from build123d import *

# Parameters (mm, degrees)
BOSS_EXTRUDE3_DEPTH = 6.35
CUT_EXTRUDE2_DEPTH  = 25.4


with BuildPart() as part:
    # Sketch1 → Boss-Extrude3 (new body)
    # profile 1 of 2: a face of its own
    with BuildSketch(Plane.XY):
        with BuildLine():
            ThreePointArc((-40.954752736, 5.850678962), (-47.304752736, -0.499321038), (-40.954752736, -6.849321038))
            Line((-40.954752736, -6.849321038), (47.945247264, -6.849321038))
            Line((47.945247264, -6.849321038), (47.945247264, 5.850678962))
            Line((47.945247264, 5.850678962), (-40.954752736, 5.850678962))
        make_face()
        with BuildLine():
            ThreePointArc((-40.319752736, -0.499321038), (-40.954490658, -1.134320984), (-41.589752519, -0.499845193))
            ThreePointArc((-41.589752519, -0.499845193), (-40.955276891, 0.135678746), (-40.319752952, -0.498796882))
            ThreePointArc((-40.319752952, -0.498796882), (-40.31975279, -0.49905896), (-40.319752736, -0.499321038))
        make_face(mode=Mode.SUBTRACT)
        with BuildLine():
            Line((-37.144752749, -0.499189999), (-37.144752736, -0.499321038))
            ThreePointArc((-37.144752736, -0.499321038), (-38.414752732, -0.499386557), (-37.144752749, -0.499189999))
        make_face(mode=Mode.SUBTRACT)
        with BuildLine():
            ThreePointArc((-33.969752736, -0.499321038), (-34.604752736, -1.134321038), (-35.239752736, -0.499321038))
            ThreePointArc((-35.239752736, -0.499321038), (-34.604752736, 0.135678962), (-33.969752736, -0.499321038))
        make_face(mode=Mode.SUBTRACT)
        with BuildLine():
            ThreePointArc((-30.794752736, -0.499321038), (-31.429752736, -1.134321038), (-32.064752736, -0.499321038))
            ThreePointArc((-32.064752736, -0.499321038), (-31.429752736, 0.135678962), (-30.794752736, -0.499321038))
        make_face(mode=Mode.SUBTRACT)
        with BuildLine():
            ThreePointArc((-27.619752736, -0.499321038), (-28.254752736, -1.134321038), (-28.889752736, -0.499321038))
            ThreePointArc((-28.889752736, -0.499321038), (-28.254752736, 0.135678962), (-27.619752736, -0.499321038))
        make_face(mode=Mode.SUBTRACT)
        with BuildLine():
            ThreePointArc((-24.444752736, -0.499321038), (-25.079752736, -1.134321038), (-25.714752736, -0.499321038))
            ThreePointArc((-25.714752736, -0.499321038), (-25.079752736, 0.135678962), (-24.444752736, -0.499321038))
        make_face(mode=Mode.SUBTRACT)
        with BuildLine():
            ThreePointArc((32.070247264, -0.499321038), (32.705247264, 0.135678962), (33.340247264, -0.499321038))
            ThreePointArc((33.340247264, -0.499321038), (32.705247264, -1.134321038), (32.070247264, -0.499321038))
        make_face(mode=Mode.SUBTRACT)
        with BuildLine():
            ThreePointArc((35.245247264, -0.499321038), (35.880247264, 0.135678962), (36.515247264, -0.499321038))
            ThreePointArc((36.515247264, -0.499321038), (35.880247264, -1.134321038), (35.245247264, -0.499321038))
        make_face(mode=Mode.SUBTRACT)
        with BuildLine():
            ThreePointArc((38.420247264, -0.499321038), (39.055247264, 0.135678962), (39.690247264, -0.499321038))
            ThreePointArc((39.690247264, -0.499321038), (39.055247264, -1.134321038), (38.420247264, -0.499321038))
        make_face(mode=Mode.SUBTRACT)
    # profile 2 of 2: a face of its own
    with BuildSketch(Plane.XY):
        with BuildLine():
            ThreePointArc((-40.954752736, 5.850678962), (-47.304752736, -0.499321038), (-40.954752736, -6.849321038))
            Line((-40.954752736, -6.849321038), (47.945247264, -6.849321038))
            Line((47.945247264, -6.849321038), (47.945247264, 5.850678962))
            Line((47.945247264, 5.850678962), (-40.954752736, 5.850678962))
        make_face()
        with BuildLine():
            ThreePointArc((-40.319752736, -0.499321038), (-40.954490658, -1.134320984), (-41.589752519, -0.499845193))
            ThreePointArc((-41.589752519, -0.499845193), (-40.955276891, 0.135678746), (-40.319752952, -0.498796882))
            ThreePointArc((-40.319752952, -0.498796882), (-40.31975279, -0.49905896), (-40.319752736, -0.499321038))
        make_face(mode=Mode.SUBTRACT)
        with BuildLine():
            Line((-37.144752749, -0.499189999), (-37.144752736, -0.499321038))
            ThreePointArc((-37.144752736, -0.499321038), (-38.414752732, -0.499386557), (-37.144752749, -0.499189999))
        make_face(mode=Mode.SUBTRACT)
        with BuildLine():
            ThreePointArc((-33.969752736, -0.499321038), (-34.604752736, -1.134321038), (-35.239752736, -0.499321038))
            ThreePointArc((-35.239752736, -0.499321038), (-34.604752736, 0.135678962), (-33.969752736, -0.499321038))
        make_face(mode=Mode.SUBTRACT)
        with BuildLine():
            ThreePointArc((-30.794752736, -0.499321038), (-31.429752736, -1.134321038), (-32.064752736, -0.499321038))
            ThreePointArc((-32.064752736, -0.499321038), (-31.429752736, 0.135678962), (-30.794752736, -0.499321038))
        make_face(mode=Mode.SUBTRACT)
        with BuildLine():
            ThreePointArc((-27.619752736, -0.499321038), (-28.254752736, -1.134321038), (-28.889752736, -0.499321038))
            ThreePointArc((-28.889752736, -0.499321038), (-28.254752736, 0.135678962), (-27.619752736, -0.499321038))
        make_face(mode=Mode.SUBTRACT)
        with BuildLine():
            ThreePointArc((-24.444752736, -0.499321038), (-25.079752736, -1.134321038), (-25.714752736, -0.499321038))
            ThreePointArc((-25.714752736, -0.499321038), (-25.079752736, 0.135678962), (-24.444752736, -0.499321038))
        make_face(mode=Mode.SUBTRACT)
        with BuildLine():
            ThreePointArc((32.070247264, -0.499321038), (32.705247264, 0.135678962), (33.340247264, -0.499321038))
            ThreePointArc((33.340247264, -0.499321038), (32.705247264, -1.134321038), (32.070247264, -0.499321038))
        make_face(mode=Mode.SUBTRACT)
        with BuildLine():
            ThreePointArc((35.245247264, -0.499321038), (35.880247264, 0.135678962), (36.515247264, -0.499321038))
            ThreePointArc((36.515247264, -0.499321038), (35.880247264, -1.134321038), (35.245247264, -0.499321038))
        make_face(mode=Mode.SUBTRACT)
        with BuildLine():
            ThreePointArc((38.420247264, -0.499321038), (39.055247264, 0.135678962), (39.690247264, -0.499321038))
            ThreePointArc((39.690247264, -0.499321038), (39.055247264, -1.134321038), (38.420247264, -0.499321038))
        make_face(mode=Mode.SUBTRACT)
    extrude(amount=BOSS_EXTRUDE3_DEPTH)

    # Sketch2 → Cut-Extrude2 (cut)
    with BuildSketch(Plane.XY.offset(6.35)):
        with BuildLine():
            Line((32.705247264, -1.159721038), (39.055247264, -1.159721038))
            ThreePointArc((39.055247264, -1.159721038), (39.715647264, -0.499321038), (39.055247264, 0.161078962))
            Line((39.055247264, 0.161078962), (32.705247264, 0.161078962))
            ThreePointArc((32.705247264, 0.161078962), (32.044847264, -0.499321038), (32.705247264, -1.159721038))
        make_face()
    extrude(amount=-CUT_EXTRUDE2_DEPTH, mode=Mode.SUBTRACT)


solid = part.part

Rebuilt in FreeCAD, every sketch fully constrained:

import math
import FreeCAD as App
import Part
import Sketcher
from FreeCAD import Vector
Q = App.Units.Quantity

doc = App.newDocument("Part")
body = doc.addObject("PartDesign::Body", "Body")

sketch1 = body.newObject("Sketcher::SketchObject", "Sketch")
sketch1.AttachmentSupport = (doc.getObject("XY_Plane"), [""])
sketch1.MapMode = "FlatFace"
sketch1.addGeometry([
    Part.ArcOfCircle(Part.Circle(Vector(-40.95475, -0.49932, 0), Vector(0, 0, 1), 6.35), math.radians(90), math.radians(270)),
    Part.LineSegment(Vector(-40.95475, -6.84932, 0), Vector(47.94525, -6.84932, 0)),
    Part.LineSegment(Vector(47.94525, -6.84932, 0), Vector(47.94525, 5.85068, 0)),
    Part.LineSegment(Vector(47.94525, 5.85068, 0), Vector(-40.95475, 5.85068, 0)),
    Part.ArcOfCircle(Part.Circle(Vector(-40.95572, -0.49932, 0), Vector(0, 0, 1), 0.63597), math.radians(0), math.radians(0.05)),
    Part.ArcOfCircle(Part.Circle(Vector(-40.95475, -0.49932, 0), Vector(0, 0, 1), 0.635), math.radians(-180), math.radians(0)),
    Part.ArcOfCircle(Part.Circle(Vector(-40.95475, -0.49932, 0), Vector(0, 0, 1), 0.635), math.radians(0), math.radians(180)),
    Part.Circle(Vector(-34.60475, -0.49932, 0), Vector(0, 0, 1), 0.635),
    Part.Circle(Vector(-31.42975, -0.49932, 0), Vector(0, 0, 1), 0.635),
    Part.Circle(Vector(-28.25475, -0.49932, 0), Vector(0, 0, 1), 0.635),
    Part.Circle(Vector(-25.07975, -0.49932, 0), Vector(0, 0, 1), 0.635),
    Part.Circle(Vector(32.70525, -0.49932, 0), Vector(0, 0, 1), 0.635),
    Part.Circle(Vector(35.88025, -0.49932, 0), Vector(0, 0, 1), 0.635),
    Part.Circle(Vector(39.05525, -0.49932, 0), Vector(0, 0, 1), 0.635),
    Part.ArcOfCircle(Part.Circle(Vector(-37.77975, -0.49932, 0), Vector(0, 0, 1), 0.635), math.radians(0), math.radians(360)),
    Part.LineSegment(Vector(-37.14475, -0.49919, 0), Vector(-37.14475, -0.49932, 0)),
], False)
sketch1.addConstraint([
    Sketcher.Constraint("Tangent", 0, 2, 1, 1),
    Sketcher.Constraint("Coincident", 1, 2, 2, 1),
    Sketcher.Constraint("Coincident", 2, 2, 3, 1),
    Sketcher.Constraint("Tangent", 3, 2, 0, 1),
    Sketcher.Constraint("Tangent", 4, 1, 5, 2),
    Sketcher.Constraint("Tangent", 5, 1, 6, 2),
    Sketcher.Constraint("Coincident", 6, 1, 4, 2),
    Sketcher.Constraint("Coincident", 14, 1, 15, 1),
    Sketcher.Constraint("Coincident", 15, 2, 14, 2),
    Sketcher.Constraint("Horizontal", 1),
    Sketcher.Constraint("Vertical", 2),
    Sketcher.Constraint("Horizontal", 3),
    Sketcher.Constraint("Coincident", 5, 3, 0, 3),
    Sketcher.Constraint("Equal", 6, 7),
    Sketcher.Constraint("Equal", 7, 8),
    Sketcher.Constraint("Equal", 8, 9),
    Sketcher.Constraint("Equal", 9, 10),
    Sketcher.Constraint("Equal", 10, 11),
    Sketcher.Constraint("Equal", 11, 12),
    Sketcher.Constraint("Equal", 12, 13),
    Sketcher.Constraint("Equal", 13, 14),
    Sketcher.Constraint("Horizontal", 6, 3, 7, 3),
    Sketcher.Constraint("Horizontal", 7, 3, 8, 3),
    Sketcher.Constraint("Horizontal", 8, 3, 9, 3),
    Sketcher.Constraint("Horizontal", 9, 3, 10, 3),
    Sketcher.Constraint("Horizontal", 10, 3, 11, 3),
    Sketcher.Constraint("Horizontal", 11, 3, 12, 3),
    Sketcher.Constraint("Horizontal", 12, 3, 13, 3),
    Sketcher.Constraint("Horizontal", 13, 3, 4, 1),
    Sketcher.Constraint("Horizontal", 4, 1, 15, 2),
    Sketcher.Constraint("Diameter", 7, Q("0.05 in")),
    Sketcher.Constraint("Radius", 0, Q("0.25 in")),
    Sketcher.Constraint("DistanceX", 1, 1, 1, 2, Q("3.5 in")),
    Sketcher.Constraint("DistanceX", 9, 3, 1, 2, Q("3 in")),
    Sketcher.Constraint("DistanceX", 9, 3, 11, 3, Q("2.4 in")),
    Sketcher.Constraint("DistanceX", 10, 3, 12, 3, Q("2.4 in")),
    Sketcher.Constraint("DistanceX", 4, 1, 14, 3, Q("0.1 in")),
    Sketcher.Constraint("DistanceX", 14, 1, 7, 3, Q("0.1 in")),
    Sketcher.Constraint("DistanceX", 8, 3, 10, 3, Q("0.25 in")),
    Sketcher.Constraint("DistanceX", 11, 3, 13, 3, Q("0.25 in")),
    Sketcher.Constraint("DistanceY", 0, 2, 14, 3, Q("0.2500001 in")),
    Sketcher.Constraint("Radius", 4, 0.635971),
    Sketcher.Constraint("DistanceX", 7, 3, 8, 3, Q("0.125 in")),
    Sketcher.Constraint("DistanceY", 15, 2, 15, 1, 0.000131),
    Sketcher.Constraint("DistanceY", 0, 3, -1, 1, 0.499321),
    Sketcher.Constraint("DistanceX", 0, 3, -1, 1, 40.954753),
    Sketcher.Constraint("DistanceY", 5, 1, -1, 1, 0.499845),
    Sketcher.Constraint("DistanceY", 6, 1, -1, 1, 0.498797),
])
pad1 = body.newObject("PartDesign::Pad", "Pad")
pad1.Profile = sketch1
pad1.Length = Q("0.25 in")

sketch2 = body.newObject("Sketcher::SketchObject", "Sketch001")
sketch2.AttachmentSupport = (doc.getObject("XY_Plane"), [""])
sketch2.MapMode = "FlatFace"
sketch2.AttachmentOffset = App.Placement(Vector(0, 0, 0.25 * 25.4), App.Rotation())
sketch2.addGeometry([
    Part.LineSegment(Vector(32.7, -1.2, 0), Vector(39.1, -1.2, 0)),
    Part.ArcOfCircle(Part.Circle(Vector(39.1, -0.5, 0), Vector(0, 0, 1), 0.7), math.radians(-90), math.radians(90)),
    Part.LineSegment(Vector(39.1, 0.2, 0), Vector(32.7, 0.2, 0)),
    Part.ArcOfCircle(Part.Circle(Vector(32.7, -0.5, 0), Vector(0, 0, 1), 0.7), math.radians(90), math.radians(270)),
], False)
sketch2.addConstraint([
    Sketcher.Constraint("Tangent", 0, 2, 1, 1),
    Sketcher.Constraint("Tangent", 1, 2, 2, 1),
    Sketcher.Constraint("Tangent", 2, 2, 3, 1),
    Sketcher.Constraint("Tangent", 3, 2, 0, 1),
    Sketcher.Constraint("Horizontal", 0),
    Sketcher.Constraint("Horizontal", 2),
    Sketcher.Constraint("Radius", 1, Q("0.026 in")),
    Sketcher.Constraint("DistanceX", 0, 1, 0, 2, Q("0.25 in")),
    Sketcher.Constraint("DistanceY", 1, 3, -1, 1, 0.499321),
    Sketcher.Constraint("DistanceX", -1, 1, 1, 3, 39.055247),
])
pocket1 = body.newObject("PartDesign::Pocket", "Pocket")
pocket1.Profile = sketch2
pocket1.Length = Q("1 in")

doc.recompute()
